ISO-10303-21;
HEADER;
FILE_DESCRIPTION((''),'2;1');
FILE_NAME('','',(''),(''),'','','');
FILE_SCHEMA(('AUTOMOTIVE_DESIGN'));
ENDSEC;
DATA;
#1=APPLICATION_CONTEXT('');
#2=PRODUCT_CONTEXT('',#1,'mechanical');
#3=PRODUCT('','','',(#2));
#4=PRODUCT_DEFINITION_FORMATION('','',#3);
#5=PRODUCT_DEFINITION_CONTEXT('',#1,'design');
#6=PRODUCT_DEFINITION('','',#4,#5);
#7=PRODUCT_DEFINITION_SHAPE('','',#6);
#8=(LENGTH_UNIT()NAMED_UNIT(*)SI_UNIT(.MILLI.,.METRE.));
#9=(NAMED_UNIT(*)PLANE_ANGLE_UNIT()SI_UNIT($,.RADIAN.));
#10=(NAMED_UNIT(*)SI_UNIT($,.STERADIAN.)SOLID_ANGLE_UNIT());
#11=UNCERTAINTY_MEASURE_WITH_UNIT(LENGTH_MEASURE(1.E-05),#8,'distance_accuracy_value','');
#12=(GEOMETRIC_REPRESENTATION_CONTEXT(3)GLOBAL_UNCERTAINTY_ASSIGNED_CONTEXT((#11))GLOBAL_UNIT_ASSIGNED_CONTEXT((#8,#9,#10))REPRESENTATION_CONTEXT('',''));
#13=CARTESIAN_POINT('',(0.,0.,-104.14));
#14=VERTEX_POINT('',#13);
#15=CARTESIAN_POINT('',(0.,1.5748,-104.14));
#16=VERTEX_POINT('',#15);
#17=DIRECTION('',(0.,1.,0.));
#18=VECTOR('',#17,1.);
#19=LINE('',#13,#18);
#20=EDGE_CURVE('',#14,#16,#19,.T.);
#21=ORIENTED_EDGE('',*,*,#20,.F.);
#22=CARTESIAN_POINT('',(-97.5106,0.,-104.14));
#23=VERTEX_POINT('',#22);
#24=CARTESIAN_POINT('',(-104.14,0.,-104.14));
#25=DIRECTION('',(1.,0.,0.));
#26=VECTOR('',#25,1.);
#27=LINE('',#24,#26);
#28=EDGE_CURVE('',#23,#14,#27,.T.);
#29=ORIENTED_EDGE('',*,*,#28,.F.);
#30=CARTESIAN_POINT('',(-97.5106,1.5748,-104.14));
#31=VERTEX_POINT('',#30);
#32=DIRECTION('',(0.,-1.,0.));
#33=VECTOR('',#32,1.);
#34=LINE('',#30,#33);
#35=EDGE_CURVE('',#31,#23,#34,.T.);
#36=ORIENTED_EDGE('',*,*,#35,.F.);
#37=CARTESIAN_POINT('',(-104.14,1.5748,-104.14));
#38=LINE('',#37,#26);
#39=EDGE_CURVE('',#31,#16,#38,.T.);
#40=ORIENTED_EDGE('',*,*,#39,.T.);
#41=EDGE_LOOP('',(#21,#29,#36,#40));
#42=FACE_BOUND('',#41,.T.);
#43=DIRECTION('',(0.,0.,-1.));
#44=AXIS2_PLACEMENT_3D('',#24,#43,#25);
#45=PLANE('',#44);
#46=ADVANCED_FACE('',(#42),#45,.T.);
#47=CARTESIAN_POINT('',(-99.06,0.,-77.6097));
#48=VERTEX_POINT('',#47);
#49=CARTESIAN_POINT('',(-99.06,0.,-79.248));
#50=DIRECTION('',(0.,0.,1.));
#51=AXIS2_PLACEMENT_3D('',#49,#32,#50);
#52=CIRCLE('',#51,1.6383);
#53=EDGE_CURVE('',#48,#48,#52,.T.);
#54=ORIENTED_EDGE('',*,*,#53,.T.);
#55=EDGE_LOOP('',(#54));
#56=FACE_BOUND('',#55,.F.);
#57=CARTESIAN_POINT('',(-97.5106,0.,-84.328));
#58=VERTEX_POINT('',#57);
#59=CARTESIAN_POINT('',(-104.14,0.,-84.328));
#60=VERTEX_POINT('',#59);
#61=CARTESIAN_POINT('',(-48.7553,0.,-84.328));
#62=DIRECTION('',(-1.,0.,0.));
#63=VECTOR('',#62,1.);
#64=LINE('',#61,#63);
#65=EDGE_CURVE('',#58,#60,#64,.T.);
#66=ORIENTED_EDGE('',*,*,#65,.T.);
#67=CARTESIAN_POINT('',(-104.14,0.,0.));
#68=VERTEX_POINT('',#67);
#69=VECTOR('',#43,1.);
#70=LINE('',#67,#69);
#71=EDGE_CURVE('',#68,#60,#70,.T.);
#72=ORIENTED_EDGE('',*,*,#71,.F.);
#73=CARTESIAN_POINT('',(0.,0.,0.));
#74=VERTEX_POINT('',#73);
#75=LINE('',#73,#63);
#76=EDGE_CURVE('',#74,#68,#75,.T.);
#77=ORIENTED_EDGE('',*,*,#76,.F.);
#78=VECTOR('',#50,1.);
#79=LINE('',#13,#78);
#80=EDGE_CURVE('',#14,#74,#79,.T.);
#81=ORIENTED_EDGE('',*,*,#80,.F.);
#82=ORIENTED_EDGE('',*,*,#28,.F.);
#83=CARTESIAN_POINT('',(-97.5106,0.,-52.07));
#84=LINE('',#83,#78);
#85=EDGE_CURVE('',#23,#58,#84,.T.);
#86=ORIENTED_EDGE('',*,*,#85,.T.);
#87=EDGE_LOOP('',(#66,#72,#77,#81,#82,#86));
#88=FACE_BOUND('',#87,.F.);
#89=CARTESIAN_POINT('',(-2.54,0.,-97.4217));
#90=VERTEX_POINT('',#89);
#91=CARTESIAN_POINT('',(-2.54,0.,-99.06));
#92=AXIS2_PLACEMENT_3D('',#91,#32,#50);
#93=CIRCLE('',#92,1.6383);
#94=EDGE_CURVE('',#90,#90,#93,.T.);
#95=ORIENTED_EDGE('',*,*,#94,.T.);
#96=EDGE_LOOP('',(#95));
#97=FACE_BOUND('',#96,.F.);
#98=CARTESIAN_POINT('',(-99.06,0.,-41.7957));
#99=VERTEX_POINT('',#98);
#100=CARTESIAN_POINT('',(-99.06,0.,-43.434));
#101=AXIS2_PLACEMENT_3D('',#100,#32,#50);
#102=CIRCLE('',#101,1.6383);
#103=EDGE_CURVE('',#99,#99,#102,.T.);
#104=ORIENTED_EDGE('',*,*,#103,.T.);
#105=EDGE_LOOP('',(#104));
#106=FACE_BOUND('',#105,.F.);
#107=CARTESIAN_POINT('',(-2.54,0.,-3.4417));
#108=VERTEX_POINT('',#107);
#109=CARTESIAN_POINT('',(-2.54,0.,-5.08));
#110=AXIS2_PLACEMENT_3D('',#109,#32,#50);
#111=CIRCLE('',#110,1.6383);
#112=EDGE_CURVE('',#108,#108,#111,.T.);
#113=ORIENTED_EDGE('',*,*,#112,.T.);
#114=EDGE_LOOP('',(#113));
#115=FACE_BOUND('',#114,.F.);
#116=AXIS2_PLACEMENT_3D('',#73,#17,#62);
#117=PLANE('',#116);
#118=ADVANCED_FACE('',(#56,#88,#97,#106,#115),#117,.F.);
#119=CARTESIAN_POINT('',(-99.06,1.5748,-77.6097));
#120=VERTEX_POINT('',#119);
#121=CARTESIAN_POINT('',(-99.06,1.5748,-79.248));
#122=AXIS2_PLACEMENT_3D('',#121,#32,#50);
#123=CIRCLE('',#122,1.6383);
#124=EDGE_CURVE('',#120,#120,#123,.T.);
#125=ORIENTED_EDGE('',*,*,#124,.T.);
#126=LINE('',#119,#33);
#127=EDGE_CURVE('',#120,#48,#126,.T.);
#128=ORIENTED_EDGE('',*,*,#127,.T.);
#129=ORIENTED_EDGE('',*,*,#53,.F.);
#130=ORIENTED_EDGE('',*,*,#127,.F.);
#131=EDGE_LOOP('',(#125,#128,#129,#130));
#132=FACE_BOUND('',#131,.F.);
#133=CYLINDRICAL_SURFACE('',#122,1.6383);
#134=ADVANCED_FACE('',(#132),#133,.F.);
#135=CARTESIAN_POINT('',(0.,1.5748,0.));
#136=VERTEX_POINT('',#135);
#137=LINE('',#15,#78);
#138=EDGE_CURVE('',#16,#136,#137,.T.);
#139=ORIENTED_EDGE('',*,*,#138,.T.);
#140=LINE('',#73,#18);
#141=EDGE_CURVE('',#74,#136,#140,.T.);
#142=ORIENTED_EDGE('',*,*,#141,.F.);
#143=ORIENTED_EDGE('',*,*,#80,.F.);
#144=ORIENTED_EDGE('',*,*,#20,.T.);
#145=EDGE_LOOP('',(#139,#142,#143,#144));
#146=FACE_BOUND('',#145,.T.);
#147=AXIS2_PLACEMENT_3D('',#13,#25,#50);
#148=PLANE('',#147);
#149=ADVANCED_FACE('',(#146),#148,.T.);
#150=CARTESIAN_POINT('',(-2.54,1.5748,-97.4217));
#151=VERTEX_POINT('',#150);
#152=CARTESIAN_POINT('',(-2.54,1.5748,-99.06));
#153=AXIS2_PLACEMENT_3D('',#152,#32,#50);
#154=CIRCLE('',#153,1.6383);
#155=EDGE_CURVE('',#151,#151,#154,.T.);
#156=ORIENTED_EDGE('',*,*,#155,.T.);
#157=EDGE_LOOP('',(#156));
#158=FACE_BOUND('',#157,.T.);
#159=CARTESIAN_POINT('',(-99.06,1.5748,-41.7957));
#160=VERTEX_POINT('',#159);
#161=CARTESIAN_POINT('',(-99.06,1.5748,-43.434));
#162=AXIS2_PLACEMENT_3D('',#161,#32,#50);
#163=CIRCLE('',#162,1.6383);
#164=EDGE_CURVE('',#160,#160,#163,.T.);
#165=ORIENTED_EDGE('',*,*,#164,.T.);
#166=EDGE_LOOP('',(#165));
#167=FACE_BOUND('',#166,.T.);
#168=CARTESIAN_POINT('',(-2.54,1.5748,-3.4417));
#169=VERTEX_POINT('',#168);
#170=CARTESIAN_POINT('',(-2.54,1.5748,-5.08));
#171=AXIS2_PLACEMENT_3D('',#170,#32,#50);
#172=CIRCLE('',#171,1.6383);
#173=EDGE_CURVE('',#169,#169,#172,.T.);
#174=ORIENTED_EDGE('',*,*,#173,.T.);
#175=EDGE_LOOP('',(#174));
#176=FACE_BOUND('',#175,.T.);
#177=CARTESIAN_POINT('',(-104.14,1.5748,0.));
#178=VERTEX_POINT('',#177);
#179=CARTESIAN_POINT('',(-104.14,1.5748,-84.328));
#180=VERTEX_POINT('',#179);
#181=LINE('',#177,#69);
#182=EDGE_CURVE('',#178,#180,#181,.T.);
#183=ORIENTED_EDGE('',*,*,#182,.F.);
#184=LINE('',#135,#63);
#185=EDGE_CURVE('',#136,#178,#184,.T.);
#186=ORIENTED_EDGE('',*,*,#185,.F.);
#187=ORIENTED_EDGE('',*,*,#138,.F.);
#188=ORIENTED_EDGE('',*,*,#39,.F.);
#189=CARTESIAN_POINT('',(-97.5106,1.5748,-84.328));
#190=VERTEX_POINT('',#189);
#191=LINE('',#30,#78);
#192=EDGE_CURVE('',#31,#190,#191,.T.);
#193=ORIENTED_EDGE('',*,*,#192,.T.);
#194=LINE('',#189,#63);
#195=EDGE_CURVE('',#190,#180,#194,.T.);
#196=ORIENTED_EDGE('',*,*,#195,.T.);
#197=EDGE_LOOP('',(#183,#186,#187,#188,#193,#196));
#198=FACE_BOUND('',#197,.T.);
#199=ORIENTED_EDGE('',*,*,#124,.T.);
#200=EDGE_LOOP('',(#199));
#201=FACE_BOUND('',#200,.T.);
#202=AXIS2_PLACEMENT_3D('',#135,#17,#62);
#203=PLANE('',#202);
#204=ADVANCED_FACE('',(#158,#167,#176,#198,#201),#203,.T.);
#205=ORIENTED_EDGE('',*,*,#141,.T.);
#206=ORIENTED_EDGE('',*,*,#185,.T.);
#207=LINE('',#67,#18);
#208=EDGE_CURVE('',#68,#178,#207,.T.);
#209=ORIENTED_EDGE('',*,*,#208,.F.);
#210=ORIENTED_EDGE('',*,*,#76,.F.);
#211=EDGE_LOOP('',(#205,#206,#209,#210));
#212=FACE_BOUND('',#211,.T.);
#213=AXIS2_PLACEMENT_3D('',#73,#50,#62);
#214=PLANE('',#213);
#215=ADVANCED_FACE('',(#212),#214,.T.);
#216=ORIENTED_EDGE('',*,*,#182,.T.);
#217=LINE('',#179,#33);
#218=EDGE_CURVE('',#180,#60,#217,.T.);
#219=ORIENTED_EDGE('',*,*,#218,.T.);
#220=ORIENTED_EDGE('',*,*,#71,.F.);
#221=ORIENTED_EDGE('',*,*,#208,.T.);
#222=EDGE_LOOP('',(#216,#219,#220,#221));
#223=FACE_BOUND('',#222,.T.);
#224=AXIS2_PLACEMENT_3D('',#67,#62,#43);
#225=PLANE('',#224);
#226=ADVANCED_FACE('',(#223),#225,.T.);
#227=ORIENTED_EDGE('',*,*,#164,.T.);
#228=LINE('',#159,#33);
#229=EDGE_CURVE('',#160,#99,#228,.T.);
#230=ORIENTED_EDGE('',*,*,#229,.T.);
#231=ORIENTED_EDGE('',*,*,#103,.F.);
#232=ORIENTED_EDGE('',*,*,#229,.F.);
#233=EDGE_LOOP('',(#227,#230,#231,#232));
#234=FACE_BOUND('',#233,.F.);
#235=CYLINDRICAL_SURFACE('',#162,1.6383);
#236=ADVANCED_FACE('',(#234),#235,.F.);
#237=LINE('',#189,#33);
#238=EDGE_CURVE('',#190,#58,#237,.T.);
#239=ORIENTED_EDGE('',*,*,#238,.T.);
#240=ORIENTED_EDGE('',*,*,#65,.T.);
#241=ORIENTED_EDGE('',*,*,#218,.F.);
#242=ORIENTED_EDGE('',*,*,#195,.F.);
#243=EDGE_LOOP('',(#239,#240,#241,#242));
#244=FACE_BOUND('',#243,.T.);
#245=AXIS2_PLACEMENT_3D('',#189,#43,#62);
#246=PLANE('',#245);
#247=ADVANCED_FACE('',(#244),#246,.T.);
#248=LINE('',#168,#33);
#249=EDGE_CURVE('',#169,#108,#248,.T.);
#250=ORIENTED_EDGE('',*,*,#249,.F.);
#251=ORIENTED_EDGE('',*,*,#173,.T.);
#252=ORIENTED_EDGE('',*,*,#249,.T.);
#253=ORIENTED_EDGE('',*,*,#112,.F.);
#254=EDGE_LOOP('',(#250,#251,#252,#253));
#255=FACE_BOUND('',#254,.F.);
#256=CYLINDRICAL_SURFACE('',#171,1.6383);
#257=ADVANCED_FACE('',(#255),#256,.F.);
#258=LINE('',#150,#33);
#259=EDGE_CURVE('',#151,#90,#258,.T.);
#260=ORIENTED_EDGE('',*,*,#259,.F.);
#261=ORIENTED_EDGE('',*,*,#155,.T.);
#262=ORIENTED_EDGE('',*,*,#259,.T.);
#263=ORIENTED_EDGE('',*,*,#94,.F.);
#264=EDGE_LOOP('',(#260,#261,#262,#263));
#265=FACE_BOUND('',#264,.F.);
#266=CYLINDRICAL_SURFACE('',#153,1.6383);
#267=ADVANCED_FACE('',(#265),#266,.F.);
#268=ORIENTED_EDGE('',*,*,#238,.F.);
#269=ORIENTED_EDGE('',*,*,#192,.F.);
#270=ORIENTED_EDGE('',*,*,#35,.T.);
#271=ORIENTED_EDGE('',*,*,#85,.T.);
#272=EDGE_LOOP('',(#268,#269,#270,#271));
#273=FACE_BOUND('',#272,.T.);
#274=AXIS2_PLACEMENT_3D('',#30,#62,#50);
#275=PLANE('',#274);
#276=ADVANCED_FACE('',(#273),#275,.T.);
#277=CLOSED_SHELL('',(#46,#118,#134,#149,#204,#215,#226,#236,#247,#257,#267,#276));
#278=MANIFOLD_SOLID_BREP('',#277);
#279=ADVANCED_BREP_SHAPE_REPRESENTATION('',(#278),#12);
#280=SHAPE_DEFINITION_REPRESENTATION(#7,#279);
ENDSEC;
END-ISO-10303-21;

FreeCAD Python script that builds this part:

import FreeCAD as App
import Part
import Sketcher
Q = App.Units.Quantity


def add_polygon(sketch, points):
    """Adds a closed chain of lines whose ends are joined by coincident constraints."""
    first, n = sketch.GeometryCount, len(points)
    for a, b in zip(points, points[1:] + points[:1]):
        sketch.addGeometry(Part.LineSegment(App.Vector(*a, 0), App.Vector(*b, 0)), False)
    for i in range(n):
        sketch.addConstraint(Sketcher.Constraint("Coincident", first + i, 2, first + (i + 1) % n, 1))

doc = App.newDocument("Part")
body = doc.addObject("PartDesign::Body", "Body")

# Sketch on XZ plane
sketch1 = body.newObject("Sketcher::SketchObject", "Sketch")
sketch1.AttachmentSupport = (doc.getObject("XZ_Plane"), [""])
sketch1.MapMode = "FlatFace"
add_polygon(sketch1, [(-104, 0), (0, 0), (0, -104), (-104, -104)])  # lines 0-3
sketch1.addConstraint([
    Sketcher.Constraint("Horizontal", 0),
    Sketcher.Constraint("Vertical", 1),
    Sketcher.Constraint("Horizontal", 2),
    Sketcher.Constraint("Vertical", 3),
    Sketcher.Constraint("Coincident", 0, 2, -1, 1),
    Sketcher.Constraint("Equal", 2, 1),
    Sketcher.Constraint("DistanceX", 0, 1, 0, 2, Q("4.1 in")),
])
pad1 = body.newObject("PartDesign::Pad", "Pad")
pad1.Profile = sketch1
pad1.Length = Q("0.062 in")
pad1.Reversed = True

# Sketch on XZ plane
sketch2 = body.newObject("Sketcher::SketchObject", "Sketch001")
sketch2.AttachmentSupport = (doc.getObject("XZ_Plane"), [""])
sketch2.MapMode = "FlatFace"
sketch2.AttachmentOffset = App.Placement(App.Vector(0, 0, -0.062 * 25.4), App.Rotation())
sketch2.addGeometry(Part.Circle(App.Vector(-2.5, -5.1, 0), App.Vector(0, 0, 1), 1.6), False)
sketch2.addConstraint([
    Sketcher.Constraint("Diameter", 0, Q("0.129 in")),
    Sketcher.Constraint("DistanceX", 0, 3, -1, 1, Q("0.1 in")),
    Sketcher.Constraint("DistanceY", 0, 3, -1, 1, Q("0.2 in")),
])
doc.recompute()
hole = body.newObject("PartDesign::Hole", "Hole")
hole.Profile = sketch2
hole.ThreadType = "None"
hole.Diameter = Q("0.129 in")
hole.DepthType = "Dimension"
hole.Depth = Q("1 in")
hole.DrillPoint = "Flat"
hole.Reversed = True

# Sketch on XZ plane
sketch3 = body.newObject("Sketcher::SketchObject", "Sketch002")
sketch3.AttachmentSupport = (doc.getObject("XZ_Plane"), [""])
sketch3.MapMode = "FlatFace"
sketch3.AttachmentOffset = App.Placement(App.Vector(0, 0, -0.062 * 25.4), App.Rotation())
sketch3.addGeometry(Part.Circle(App.Vector(-2.5, -99.1, 0), App.Vector(0, 0, 1), 1.6), False)
sketch3.addConstraint([
    Sketcher.Constraint("Diameter", 0, Q("0.129 in")),
    Sketcher.Constraint("DistanceX", 0, 3, -1, 1, Q("0.1 in")),
    Sketcher.Constraint("DistanceY", 0, 3, -1, 1, Q("3.9 in")),
])
doc.recompute()
hole2 = body.newObject("PartDesign::Hole", "Hole001")
hole2.Profile = sketch3
hole2.ThreadType = "None"
hole2.Diameter = Q("0.129 in")
hole2.DepthType = "Dimension"
hole2.Depth = Q("1 in")
hole2.DrillPoint = "Flat"
hole2.Reversed = True

# Sketch on XZ plane
sketch4 = body.newObject("Sketcher::SketchObject", "Sketch003")
sketch4.AttachmentSupport = (doc.getObject("XZ_Plane"), [""])
sketch4.MapMode = "FlatFace"
sketch4.AttachmentOffset = App.Placement(App.Vector(0, 0, -0.062 * 25.4), App.Rotation())
add_polygon(sketch4, [(-98, -84), (-98, -104), (-104, -104), (-104, -84)])  # lines 0-3
sketch4.addConstraint([
    Sketcher.Constraint("Vertical", 0),
    Sketcher.Constraint("Horizontal", 1),
    Sketcher.Constraint("Vertical", 2),
    Sketcher.Constraint("Horizontal", 3),
    Sketcher.Constraint("DistanceX", 1, 2, 1, 1, Q("0.261 in")),
    Sketcher.Constraint("DistanceY", 2, 2, -1, 1, Q("3.32 in")),
    Sketcher.Constraint("DistanceY", 0, 2, 0, 1, Q("0.78 in")),
    Sketcher.Constraint("DistanceX", 1, 2, -1, 1, Q("4.1 in")),
])
pocket1 = body.newObject("PartDesign::Pocket", "Pocket")
pocket1.Profile = sketch4
pocket1.Length = Q("1 in")
pocket1.Reversed = True

# Sketch on XZ plane
sketch5 = body.newObject("Sketcher::SketchObject", "Sketch004")
sketch5.AttachmentSupport = (doc.getObject("XZ_Plane"), [""])
sketch5.MapMode = "FlatFace"
sketch5.AttachmentOffset = App.Placement(App.Vector(0, 0, -0.062 * 25.4), App.Rotation())
sketch5.addGeometry(Part.Circle(App.Vector(-99.1, -79.2, 0), App.Vector(0, 0, 1), 1.6), False)
sketch5.addConstraint([
    Sketcher.Constraint("Diameter", 0, Q("0.129 in")),
    Sketcher.Constraint("DistanceX", 0, 3, -1, 1, Q("3.9 in")),
    Sketcher.Constraint("DistanceY", 0, 3, -1, 1, Q("3.12 in")),
])
doc.recompute()
hole3 = body.newObject("PartDesign::Hole", "Hole002")
hole3.Profile = sketch5
hole3.ThreadType = "None"
hole3.Diameter = Q("0.129 in")
hole3.DepthType = "Dimension"
hole3.Depth = Q("1 in")
hole3.DrillPoint = "Flat"
hole3.Reversed = True

# Sketch on XZ plane
sketch6 = body.newObject("Sketcher::SketchObject", "Sketch005")
sketch6.AttachmentSupport = (doc.getObject("XZ_Plane"), [""])
sketch6.MapMode = "FlatFace"
sketch6.AttachmentOffset = App.Placement(App.Vector(0, 0, -0.062 * 25.4), App.Rotation())
sketch6.addGeometry(Part.Circle(App.Vector(-99.1, -43.4, 0), App.Vector(0, 0, 1), 1.6), False)
sketch6.addConstraint([
    Sketcher.Constraint("Diameter", 0, Q("0.129 in")),
    Sketcher.Constraint("DistanceX", 0, 3, -1, 1, Q("3.9 in")),
    Sketcher.Constraint("DistanceY", 0, 3, -1, 1, Q("1.71 in")),
])
doc.recompute()
hole4 = body.newObject("PartDesign::Hole", "Hole003")
hole4.Profile = sketch6
hole4.ThreadType = "None"
hole4.Diameter = Q("0.129 in")
hole4.DepthType = "Dimension"
hole4.Depth = Q("1 in")
hole4.DrillPoint = "Flat"
hole4.Reversed = True

doc.recompute()
